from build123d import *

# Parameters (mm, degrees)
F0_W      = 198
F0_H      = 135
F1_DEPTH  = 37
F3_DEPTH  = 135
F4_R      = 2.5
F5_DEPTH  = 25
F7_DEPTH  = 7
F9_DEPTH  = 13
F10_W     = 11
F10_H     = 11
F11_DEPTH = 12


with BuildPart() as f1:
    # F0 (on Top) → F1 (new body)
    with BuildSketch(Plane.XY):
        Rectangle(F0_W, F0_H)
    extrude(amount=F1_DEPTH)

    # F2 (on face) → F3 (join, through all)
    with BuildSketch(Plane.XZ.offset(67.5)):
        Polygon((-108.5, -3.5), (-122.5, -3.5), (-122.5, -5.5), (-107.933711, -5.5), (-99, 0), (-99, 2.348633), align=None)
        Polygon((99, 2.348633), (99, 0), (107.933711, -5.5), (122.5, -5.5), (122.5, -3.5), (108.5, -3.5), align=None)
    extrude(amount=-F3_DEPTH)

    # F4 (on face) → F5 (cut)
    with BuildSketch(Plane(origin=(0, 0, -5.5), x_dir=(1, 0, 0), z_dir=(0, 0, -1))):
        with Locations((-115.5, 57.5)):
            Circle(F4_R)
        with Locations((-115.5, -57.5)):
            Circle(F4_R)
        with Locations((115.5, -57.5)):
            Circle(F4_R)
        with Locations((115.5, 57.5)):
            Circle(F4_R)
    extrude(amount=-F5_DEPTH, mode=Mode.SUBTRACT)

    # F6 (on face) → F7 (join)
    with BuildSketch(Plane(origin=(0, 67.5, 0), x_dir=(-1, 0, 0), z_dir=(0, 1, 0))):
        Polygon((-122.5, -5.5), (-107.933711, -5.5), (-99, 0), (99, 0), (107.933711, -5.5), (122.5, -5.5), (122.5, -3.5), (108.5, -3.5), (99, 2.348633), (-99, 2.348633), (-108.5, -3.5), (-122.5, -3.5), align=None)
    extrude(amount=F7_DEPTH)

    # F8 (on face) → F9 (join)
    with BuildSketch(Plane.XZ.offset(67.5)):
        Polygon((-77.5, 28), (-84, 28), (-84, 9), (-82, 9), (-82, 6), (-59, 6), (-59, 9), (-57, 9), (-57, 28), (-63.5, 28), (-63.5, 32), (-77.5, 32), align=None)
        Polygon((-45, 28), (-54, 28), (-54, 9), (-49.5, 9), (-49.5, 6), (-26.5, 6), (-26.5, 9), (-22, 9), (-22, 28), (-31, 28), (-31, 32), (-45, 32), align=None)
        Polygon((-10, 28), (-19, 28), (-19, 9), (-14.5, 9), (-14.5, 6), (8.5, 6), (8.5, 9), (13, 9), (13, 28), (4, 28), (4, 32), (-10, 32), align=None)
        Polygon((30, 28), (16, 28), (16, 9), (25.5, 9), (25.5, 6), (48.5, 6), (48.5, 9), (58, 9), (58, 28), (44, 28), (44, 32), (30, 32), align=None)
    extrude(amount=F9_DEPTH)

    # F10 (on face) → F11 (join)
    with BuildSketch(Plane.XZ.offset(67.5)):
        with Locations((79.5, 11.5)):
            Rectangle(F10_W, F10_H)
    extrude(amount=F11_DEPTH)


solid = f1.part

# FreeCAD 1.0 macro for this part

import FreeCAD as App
import Part
import Sketcher
from FreeCAD import Vector
Q = App.Units.Quantity

doc = App.newDocument("Part")
body = doc.addObject("PartDesign::Body", "Body")

# Sketch on XY plane
sketch1 = doc.addObject("Sketcher::SketchObject", "Sketch")
body.addObject(sketch1)
sketch1.AttachmentSupport = (doc.XY_Plane, [""])
sketch1.MapMode = "FlatFace"
sketch1.addGeometry([
    Part.LineSegment(Vector(-99, 68, 0), Vector(-99, -68, 0)),
    Part.LineSegment(Vector(-99, -68, 0), Vector(99, -68, 0)),
    Part.LineSegment(Vector(99, -68, 0), Vector(99, 68, 0)),
    Part.LineSegment(Vector(99, 68, 0), Vector(-99, 68, 0)),
], False)
sketch1.addConstraint([
    Sketcher.Constraint("Coincident", 0, 2, 1, 1),
    Sketcher.Constraint("Coincident", 1, 2, 2, 1),
    Sketcher.Constraint("Coincident", 2, 2, 3, 1),
    Sketcher.Constraint("Coincident", 3, 2, 0, 1),
    Sketcher.Constraint("Vertical", 0),
    Sketcher.Constraint("Horizontal", 1),
    Sketcher.Constraint("Vertical", 2),
    Sketcher.Constraint("Horizontal", 3),
    Sketcher.Constraint("Symmetric", 0, 2, 2, 2, -1, 1),
    Sketcher.Constraint("DistanceX", 1, 1, 1, 2, Q("198 mm")),
    Sketcher.Constraint("DistanceY", 0, 2, 0, 1, Q("135 mm")),
])
pad1 = doc.addObject("PartDesign::Pad", "Pad")
body.addObject(pad1)
pad1.Profile = sketch1
pad1.Length = 37

# Sketch on XZ plane
sketch2 = doc.addObject("Sketcher::SketchObject", "Sketch001")
body.addObject(sketch2)
sketch2.AttachmentSupport = (doc.XZ_Plane, [""])
sketch2.MapMode = "FlatFace"
sketch2.AttachmentOffset = App.Placement(Vector(0, 0, 67.5), App.Rotation())
sketch2.addGeometry([
    Part.LineSegment(Vector(-108.5, -3.5, 0), Vector(-122.5, -3.5, 0)),  # 0
    Part.LineSegment(Vector(-122.5, -3.5, 0), Vector(-122.5, -5.5, 0)),  # 1
    Part.LineSegment(Vector(-122.5, -5.5, 0), Vector(-107.9, -5.5, 0)),  # 2
    Part.LineSegment(Vector(-107.9, -5.5, 0), Vector(-99, 0, 0)),  # 3
    Part.LineSegment(Vector(-99, 0, 0), Vector(-99, 2.3, 0)),  # 4
    Part.LineSegment(Vector(-99, 2.3, 0), Vector(-108.5, -3.5, 0)),  # 5
    Part.LineSegment(Vector(99, 2.3, 0), Vector(99, 0, 0)),  # 6
    Part.LineSegment(Vector(99, 0, 0), Vector(107.9, -5.5, 0)),  # 7
    Part.LineSegment(Vector(107.9, -5.5, 0), Vector(122.5, -5.5, 0)),  # 8
    Part.LineSegment(Vector(122.5, -5.5, 0), Vector(122.5, -3.5, 0)),  # 9
    Part.LineSegment(Vector(122.5, -3.5, 0), Vector(108.5, -3.5, 0)),  # 10
    Part.LineSegment(Vector(108.5, -3.5, 0), Vector(99, 2.3, 0)),  # 11
], False)
sketch2.addConstraint([
    Sketcher.Constraint("Coincident", 0, 2, 1, 1),
    Sketcher.Constraint("Coincident", 1, 2, 2, 1),
    Sketcher.Constraint("Coincident", 2, 2, 3, 1),
    Sketcher.Constraint("Coincident", 3, 2, 4, 1),
    Sketcher.Constraint("Coincident", 4, 2, 5, 1),
    Sketcher.Constraint("Coincident", 5, 2, 0, 1),
    Sketcher.Constraint("Coincident", 6, 2, 7, 1),
    Sketcher.Constraint("Coincident", 7, 2, 8, 1),
    Sketcher.Constraint("Coincident", 8, 2, 9, 1),
    Sketcher.Constraint("Coincident", 9, 2, 10, 1),
    Sketcher.Constraint("Coincident", 10, 2, 11, 1),
    Sketcher.Constraint("Coincident", 11, 2, 6, 1),
    Sketcher.Constraint("Horizontal", 0),
    Sketcher.Constraint("Vertical", 1),
    Sketcher.Constraint("Horizontal", 2),
    Sketcher.Constraint("Vertical", 4),
    Sketcher.Constraint("Vertical", 6),
    Sketcher.Constraint("Horizontal", 8),
    Sketcher.Constraint("Vertical", 9),
    Sketcher.Constraint("Horizontal", 10),
    Sketcher.Constraint("Symmetric", 3, 2, 6, 2, -1, 1),
    Sketcher.Constraint("Symmetric", 2, 2, 7, 2, -2),
    Sketcher.Constraint("Symmetric", 0, 2, 9, 2, -2),
    Sketcher.Constraint("PointOnObject", 3, 2, -1),
    Sketcher.Constraint("Parallel", 3, 5),
    Sketcher.Constraint("Parallel", 7, 11),
    Sketcher.Constraint("Horizontal", 4, 2, 11, 2),
    Sketcher.Constraint("DistanceX", 0, 2, 0, 1, Q("14 mm")),
    Sketcher.Constraint("DistanceY", 1, 2, 1, 1, Q("2 mm")),
    Sketcher.Constraint("DistanceX", 3, 2, -1, 1, Q("99 mm")),
    Sketcher.Constraint("DistanceX", 0, 2, -1, 1, Q("122.5 mm")),
    Sketcher.Constraint("DistanceY", 0, 2, -1, 1, Q("3.5 mm")),
    Sketcher.Constraint("DistanceX", 2, 1, 2, 2, Q("14.566289 mm")),
])
pad2 = doc.addObject("PartDesign::Pad", "Pad001")
body.addObject(pad2)
pad2.Profile = sketch2
pad2.Length = 135
pad2.Reversed = True

# Sketch on XY plane
sketch3 = doc.addObject("Sketcher::SketchObject", "Sketch002")
body.addObject(sketch3)
sketch3.AttachmentSupport = (doc.XY_Plane, [""])
sketch3.MapMode = "FlatFace"
sketch3.AttachmentOffset = App.Placement(Vector(0, 0, -5.5), App.Rotation())
sketch3.addGeometry([
    Part.Circle(Vector(-115.5, -57.5, 0), Vector(0, 0, 1), 2.5),
    Part.Circle(Vector(-115.5, 57.5, 0), Vector(0, 0, 1), 2.5),
    Part.Circle(Vector(115.5, 57.5, 0), Vector(0, 0, 1), 2.5),
    Part.Circle(Vector(115.5, -57.5, 0), Vector(0, 0, 1), 2.5),
], False)
sketch3.addConstraint([
    Sketcher.Constraint("Equal", 0, 1),
    Sketcher.Constraint("Equal", 1, 2),
    Sketcher.Constraint("Equal", 2, 3),
    Sketcher.Constraint("Symmetric", 0, 3, 2, 3, -1, 1),
    Sketcher.Constraint("Symmetric", 1, 3, 3, 3, -1, 1),
    Sketcher.Constraint("Symmetric", 1, 3, 2, 3, -2),
    Sketcher.Constraint("Diameter", 0, Q("5 mm")),
    Sketcher.Constraint("DistanceY", 0, 3, 1, 3, Q("115 mm")),
    Sketcher.Constraint("DistanceX", 1, 3, 2, 3, Q("231 mm")),
])
pocket1 = doc.addObject("PartDesign::Pocket", "Pocket")
body.addObject(pocket1)
pocket1.Profile = sketch3
pocket1.Length = 25
pocket1.Reversed = True

# Sketch on XZ plane
sketch4 = doc.addObject("Sketcher::SketchObject", "Sketch003")
body.addObject(sketch4)
sketch4.AttachmentSupport = (doc.XZ_Plane, [""])
sketch4.MapMode = "FlatFace"
sketch4.AttachmentOffset = App.Placement(Vector(0, 0, -67.5), App.Rotation())
sketch4.addGeometry([
    Part.LineSegment(Vector(122.5, -5.5, 0), Vector(107.9, -5.5, 0)),  # 0
    Part.LineSegment(Vector(107.9, -5.5, 0), Vector(99, 0, 0)),  # 1
    Part.LineSegment(Vector(99, 0, 0), Vector(-99, 0, 0)),  # 2
    Part.LineSegment(Vector(-99, 0, 0), Vector(-107.9, -5.5, 0)),  # 3
    Part.LineSegment(Vector(-107.9, -5.5, 0), Vector(-122.5, -5.5, 0)),  # 4
    Part.LineSegment(Vector(-122.5, -5.5, 0), Vector(-122.5, -3.5, 0)),  # 5
    Part.LineSegment(Vector(-122.5, -3.5, 0), Vector(-108.5, -3.5, 0)),  # 6
    Part.LineSegment(Vector(-108.5, -3.5, 0), Vector(-99, 2.3, 0)),  # 7
    Part.LineSegment(Vector(-99, 2.3, 0), Vector(99, 2.3, 0)),  # 8
    Part.LineSegment(Vector(99, 2.3, 0), Vector(108.5, -3.5, 0)),  # 9
    Part.LineSegment(Vector(108.5, -3.5, 0), Vector(122.5, -3.5, 0)),  # 10
    Part.LineSegment(Vector(122.5, -3.5, 0), Vector(122.5, -5.5, 0)),  # 11
], False)
sketch4.addConstraint([
    Sketcher.Constraint("Coincident", 0, 2, 1, 1),
    Sketcher.Constraint("Coincident", 1, 2, 2, 1),
    Sketcher.Constraint("Coincident", 2, 2, 3, 1),
    Sketcher.Constraint("Coincident", 3, 2, 4, 1),
    Sketcher.Constraint("Coincident", 4, 2, 5, 1),
    Sketcher.Constraint("Coincident", 5, 2, 6, 1),
    Sketcher.Constraint("Coincident", 6, 2, 7, 1),
    Sketcher.Constraint("Coincident", 7, 2, 8, 1),
    Sketcher.Constraint("Coincident", 8, 2, 9, 1),
    Sketcher.Constraint("Coincident", 9, 2, 10, 1),
    Sketcher.Constraint("Coincident", 10, 2, 11, 1),
    Sketcher.Constraint("Coincident", 11, 2, 0, 1),
    Sketcher.Constraint("Horizontal", 0),
    Sketcher.Constraint("Horizontal", 2),
    Sketcher.Constraint("Horizontal", 4),
    Sketcher.Constraint("Vertical", 5),
    Sketcher.Constraint("Horizontal", 6),
    Sketcher.Constraint("Horizontal", 8),
    Sketcher.Constraint("Horizontal", 10),
    Sketcher.Constraint("Vertical", 11),
    Sketcher.Constraint("Symmetric", 1, 2, 2, 2, -1, 1),
    Sketcher.Constraint("Symmetric", 0, 2, 3, 2, -2),
    Sketcher.Constraint("Symmetric", 6, 2, 9, 2, -2),
    Sketcher.Constraint("Parallel", 3, 7),
    Sketcher.Constraint("Parallel", 1, 9),
    Sketcher.Constraint("Vertical", 2, 2, 7, 2),
    Sketcher.Constraint("Equal", 0, 4),
    Sketcher.Constraint("DistanceX", 2, 2, 2, 1, Q("198 mm")),
    Sketcher.Constraint("DistanceX", 6, 1, 6, 2, Q("14 mm")),
    Sketcher.Constraint("DistanceY", 5, 1, 5, 2, Q("2 mm")),
    Sketcher.Constraint("DistanceY", 0, 2, -1, 1, Q("5.5 mm")),
    Sketcher.Constraint("DistanceX", 4, 2, -1, 1, Q("122.5 mm")),
    Sketcher.Constraint("DistanceX", 0, 2, 0, 1, Q("14.566289 mm")),
])
pad3 = doc.addObject("PartDesign::Pad", "Pad002")
body.addObject(pad3)
pad3.Profile = sketch4
pad3.Length = 7
pad3.Reversed = True

# Sketch on XZ plane
sketch5 = doc.addObject("Sketcher::SketchObject", "Sketch004")
body.addObject(sketch5)
sketch5.AttachmentSupport = (doc.XZ_Plane, [""])
sketch5.MapMode = "FlatFace"
sketch5.AttachmentOffset = App.Placement(Vector(0, 0, 67.5), App.Rotation())
sketch5.addGeometry([
    Part.LineSegment(Vector(-77.5, 28, 0), Vector(-84, 28, 0)),  # 0
    Part.LineSegment(Vector(-84, 28, 0), Vector(-84, 9, 0)),  # 1
    Part.LineSegment(Vector(-84, 9, 0), Vector(-82, 9, 0)),  # 2
    Part.LineSegment(Vector(-82, 9, 0), Vector(-82, 6, 0)),  # 3
    Part.LineSegment(Vector(-82, 6, 0), Vector(-59, 6, 0)),  # 4
    Part.LineSegment(Vector(-59, 6, 0), Vector(-59, 9, 0)),  # 5
    Part.LineSegment(Vector(-59, 9, 0), Vector(-57, 9, 0)),  # 6
    Part.LineSegment(Vector(-57, 9, 0), Vector(-57, 28, 0)),  # 7
    Part.LineSegment(Vector(-57, 28, 0), Vector(-63.5, 28, 0)),  # 8
    Part.LineSegment(Vector(-63.5, 28, 0), Vector(-63.5, 32, 0)),  # 9
    Part.LineSegment(Vector(-63.5, 32, 0), Vector(-77.5, 32, 0)),  # 10
    Part.LineSegment(Vector(-77.5, 32, 0), Vector(-77.5, 28, 0)),  # 11
    Part.LineSegment(Vector(-45, 28, 0), Vector(-54, 28, 0)),  # 12
    Part.LineSegment(Vector(-54, 28, 0), Vector(-54, 9, 0)),  # 13
    Part.LineSegment(Vector(-54, 9, 0), Vector(-49.5, 9, 0)),  # 14
    Part.LineSegment(Vector(-49.5, 9, 0), Vector(-49.5, 6, 0)),  # 15
    Part.LineSegment(Vector(-49.5, 6, 0), Vector(-26.5, 6, 0)),  # 16
    Part.LineSegment(Vector(-26.5, 6, 0), Vector(-26.5, 9, 0)),  # 17
    Part.LineSegment(Vector(-26.5, 9, 0), Vector(-22, 9, 0)),  # 18
    Part.LineSegment(Vector(-22, 9, 0), Vector(-22, 28, 0)),  # 19
    Part.LineSegment(Vector(-22, 28, 0), Vector(-31, 28, 0)),  # 20
    Part.LineSegment(Vector(-31, 28, 0), Vector(-31, 32, 0)),  # 21
    Part.LineSegment(Vector(-31, 32, 0), Vector(-45, 32, 0)),  # 22
    Part.LineSegment(Vector(-45, 32, 0), Vector(-45, 28, 0)),  # 23
    Part.LineSegment(Vector(-10, 28, 0), Vector(-19, 28, 0)),  # 24
    Part.LineSegment(Vector(-19, 28, 0), Vector(-19, 9, 0)),  # 25
    Part.LineSegment(Vector(-19, 9, 0), Vector(-14.5, 9, 0)),  # 26
    Part.LineSegment(Vector(-14.5, 9, 0), Vector(-14.5, 6, 0)),  # 27
    Part.LineSegment(Vector(-14.5, 6, 0), Vector(8.5, 6, 0)),  # 28
    Part.LineSegment(Vector(8.5, 6, 0), Vector(8.5, 9, 0)),  # 29
    Part.LineSegment(Vector(8.5, 9, 0), Vector(13, 9, 0)),  # 30
    Part.LineSegment(Vector(13, 9, 0), Vector(13, 28, 0)),  # 31
    Part.LineSegment(Vector(13, 28, 0), Vector(4, 28, 0)),  # 32
    Part.LineSegment(Vector(4, 28, 0), Vector(4, 32, 0)),  # 33
    Part.LineSegment(Vector(4, 32, 0), Vector(-10, 32, 0)),  # 34
    Part.LineSegment(Vector(-10, 32, 0), Vector(-10, 28, 0)),  # 35
    Part.LineSegment(Vector(30, 28, 0), Vector(16, 28, 0)),  # 36
    Part.LineSegment(Vector(16, 28, 0), Vector(16, 9, 0)),  # 37
    Part.LineSegment(Vector(16, 9, 0), Vector(25.5, 9, 0)),  # 38
    Part.LineSegment(Vector(25.5, 9, 0), Vector(25.5, 6, 0)),  # 39
    Part.LineSegment(Vector(25.5, 6, 0), Vector(48.5, 6, 0)),  # 40
    Part.LineSegment(Vector(48.5, 6, 0), Vector(48.5, 9, 0)),  # 41
    Part.LineSegment(Vector(48.5, 9, 0), Vector(58, 9, 0)),  # 42
    Part.LineSegment(Vector(58, 9, 0), Vector(58, 28, 0)),  # 43
    Part.LineSegment(Vector(58, 28, 0), Vector(44, 28, 0)),  # 44
    Part.LineSegment(Vector(44, 28, 0), Vector(44, 32, 0)),  # 45
    Part.LineSegment(Vector(44, 32, 0), Vector(30, 32, 0)),  # 46
    Part.LineSegment(Vector(30, 32, 0), Vector(30, 28, 0)),  # 47
], False)
sketch5.addConstraint([
    Sketcher.Constraint("Coincident", 0, 2, 1, 1),
    Sketcher.Constraint("Coincident", 1, 2, 2, 1),
    Sketcher.Constraint("Coincident", 2, 2, 3, 1),
    Sketcher.Constraint("Coincident", 3, 2, 4, 1),
    Sketcher.Constraint("Coincident", 4, 2, 5, 1),
    Sketcher.Constraint("Coincident", 5, 2, 6, 1),
    Sketcher.Constraint("Coincident", 6, 2, 7, 1),
    Sketcher.Constraint("Coincident", 7, 2, 8, 1),
    Sketcher.Constraint("Coincident", 8, 2, 9, 1),
    Sketcher.Constraint("Coincident", 9, 2, 10, 1),
    Sketcher.Constraint("Coincident", 10, 2, 11, 1),
    Sketcher.Constraint("Coincident", 11, 2, 0, 1),
    Sketcher.Constraint("Coincident", 12, 2, 13, 1),
    Sketcher.Constraint("Coincident", 13, 2, 14, 1),
    Sketcher.Constraint("Coincident", 14, 2, 15, 1),
    Sketcher.Constraint("Coincident", 15, 2, 16, 1),
    Sketcher.Constraint("Coincident", 16, 2, 17, 1),
    Sketcher.Constraint("Coincident", 17, 2, 18, 1),
    Sketcher.Constraint("Coincident", 18, 2, 19, 1),
    Sketcher.Constraint("Coincident", 19, 2, 20, 1),
    Sketcher.Constraint("Coincident", 20, 2, 21, 1),
    Sketcher.Constraint("Coincident", 21, 2, 22, 1),
    Sketcher.Constraint("Coincident", 22, 2, 23, 1),
    Sketcher.Constraint("Coincident", 23, 2, 12, 1),
    Sketcher.Constraint("Coincident", 24, 2, 25, 1),
    Sketcher.Constraint("Coincident", 25, 2, 26, 1),
    Sketcher.Constraint("Coincident", 26, 2, 27, 1),
    Sketcher.Constraint("Coincident", 27, 2, 28, 1),
    Sketcher.Constraint("Coincident", 28, 2, 29, 1),
    Sketcher.Constraint("Coincident", 29, 2, 30, 1),
    Sketcher.Constraint("Coincident", 30, 2, 31, 1),
    Sketcher.Constraint("Coincident", 31, 2, 32, 1),
    Sketcher.Constraint("Coincident", 32, 2, 33, 1),
    Sketcher.Constraint("Coincident", 33, 2, 34, 1),
    Sketcher.Constraint("Coincident", 34, 2, 35, 1),
    Sketcher.Constraint("Coincident", 35, 2, 24, 1),
    Sketcher.Constraint("Coincident", 36, 2, 37, 1),
    Sketcher.Constraint("Coincident", 37, 2, 38, 1),
    Sketcher.Constraint("Coincident", 38, 2, 39, 1),
    Sketcher.Constraint("Coincident", 39, 2, 40, 1),
    Sketcher.Constraint("Coincident", 40, 2, 41, 1),
    Sketcher.Constraint("Coincident", 41, 2, 42, 1),
    Sketcher.Constraint("Coincident", 42, 2, 43, 1),
    Sketcher.Constraint("Coincident", 43, 2, 44, 1),
    Sketcher.Constraint("Coincident", 44, 2, 45, 1),
    Sketcher.Constraint("Coincident", 45, 2, 46, 1),
    Sketcher.Constraint("Coincident", 46, 2, 47, 1),
    Sketcher.Constraint("Coincident", 47, 2, 36, 1),
    Sketcher.Constraint("Horizontal", 0),
    Sketcher.Constraint("Vertical", 1),
    Sketcher.Constraint("Horizontal", 2),
    Sketcher.Constraint("Vertical", 3),
    Sketcher.Constraint("Horizontal", 4),
    Sketcher.Constraint("Vertical", 5),
    Sketcher.Constraint("Horizontal", 6),
    Sketcher.Constraint("Vertical", 7),
    Sketcher.Constraint("Horizontal", 8),
    Sketcher.Constraint("Vertical", 9),
    Sketcher.Constraint("Horizontal", 10),
    Sketcher.Constraint("Vertical", 11),
    Sketcher.Constraint("Horizontal", 12),
    Sketcher.Constraint("Vertical", 13),
    Sketcher.Constraint("Horizontal", 14),
    Sketcher.Constraint("Vertical", 15),
    Sketcher.Constraint("Horizontal", 16),
    Sketcher.Constraint("Vertical", 17),
    Sketcher.Constraint("Horizontal", 18),
    Sketcher.Constraint("Vertical", 19),
    Sketcher.Constraint("Horizontal", 20),
    Sketcher.Constraint("Vertical", 21),
    Sketcher.Constraint("Horizontal", 22),
    Sketcher.Constraint("Vertical", 23),
    Sketcher.Constraint("Horizontal", 24),
    Sketcher.Constraint("Vertical", 25),
    Sketcher.Constraint("Horizontal", 26),
    Sketcher.Constraint("Vertical", 27),
    Sketcher.Constraint("Horizontal", 28),
    Sketcher.Constraint("Vertical", 29),
    Sketcher.Constraint("Horizontal", 30),
    Sketcher.Constraint("Vertical", 31),
    Sketcher.Constraint("Horizontal", 32),
    Sketcher.Constraint("Vertical", 33),
    Sketcher.Constraint("Horizontal", 34),
    Sketcher.Constraint("Vertical", 35),
    Sketcher.Constraint("Horizontal", 36),
    Sketcher.Constraint("Vertical", 37),
    Sketcher.Constraint("Horizontal", 38),
    Sketcher.Constraint("Vertical", 39),
    Sketcher.Constraint("Horizontal", 40),
    Sketcher.Constraint("Vertical", 41),
    Sketcher.Constraint("Horizontal", 42),
    Sketcher.Constraint("Vertical", 43),
    Sketcher.Constraint("Horizontal", 44),
    Sketcher.Constraint("Vertical", 45),
    Sketcher.Constraint("Horizontal", 46),
    Sketcher.Constraint("Vertical", 47),
    Sketcher.Constraint("Horizontal", 2, 2, 5, 2),
    Sketcher.Constraint("Horizontal", 0, 2, 7, 2),
    Sketcher.Constraint("Horizontal", 11, 2, 12, 2),
    Sketcher.Constraint("Horizontal", 6, 2, 13, 2),
    Sketcher.Constraint("Horizontal", 4, 2, 15, 2),
    Sketcher.Constraint("Horizontal", 14, 2, 17, 2),
    Sketcher.Constraint("Horizontal", 12, 2, 19, 2),
    Sketcher.Constraint("Horizontal", 10, 2, 21, 2),
    Sketcher.Constraint("Horizontal", 23, 2, 24, 2),
    Sketcher.Constraint("Horizontal", 18, 2, 25, 2),
    Sketcher.Constraint("Horizontal", 16, 2, 27, 2),
    Sketcher.Constraint("Horizontal", 26, 2, 29, 2),
    Sketcher.Constraint("Horizontal", 24, 2, 31, 2),
    Sketcher.Constraint("Horizontal", 22, 2, 33, 2),
    Sketcher.Constraint("Horizontal", 35, 2, 36, 2),
    Sketcher.Constraint("Horizontal", 30, 2, 37, 2),
    Sketcher.Constraint("Horizontal", 28, 2, 39, 2),
    Sketcher.Constraint("Horizontal", 38, 2, 41, 2),
    Sketcher.Constraint("Horizontal", 36, 2, 43, 2),
    Sketcher.Constraint("Horizontal", 34, 2, 45, 2),
    Sketcher.Constraint("Equal", 2, 6),
    Sketcher.Constraint("Equal", 0, 8),
    Sketcher.Constraint("Equal", 4, 16),
    Sketcher.Constraint("Equal", 14, 18),
    Sketcher.Constraint("Equal", 12, 20),
    Sketcher.Constraint("Equal", 10, 22),
    Sketcher.Constraint("Equal", 20, 24),
    Sketcher.Constraint("Equal", 18, 26),
    Sketcher.Constraint("Equal", 16, 28),
    Sketcher.Constraint("Equal", 26, 30),
    Sketcher.Constraint("Equal", 24, 32),
    Sketcher.Constraint("Equal", 34, 36),
    Sketcher.Constraint("Equal", 28, 40),
    Sketcher.Constraint("Equal", 38, 42),
    Sketcher.Constraint("Equal", 36, 44),
    Sketcher.Constraint("Equal", 44, 46),
    Sketcher.Constraint("DistanceX", 2, 1, 2, 2, Q("2 mm")),
    Sketcher.Constraint("DistanceX", 4, 1, 4, 2, Q("23 mm")),
    Sketcher.Constraint("DistanceX", 10, 2, 10, 1, Q("14 mm")),
    Sketcher.Constraint("DistanceX", 12, 2, 12, 1, Q("9 mm")),
    Sketcher.Constraint("DistanceY", 1, 2, 1, 1, Q("19 mm")),
    Sketcher.Constraint("DistanceY", 3, 2, 3, 1, Q("3 mm")),
    Sketcher.Constraint("DistanceY", 9, 1, 9, 2, Q("4 mm")),
    Sketcher.Constraint("DistanceX", 0, 2, -1, 1, Q("84 mm")),
    Sketcher.Constraint("DistanceY", -1, 1, 0, 2, Q("28 mm")),
    Sketcher.Constraint("DistanceX", 12, 2, -1, 1, Q("54 mm")),
    Sketcher.Constraint("DistanceX", 24, 2, -1, 1, Q("19 mm")),
    Sketcher.Constraint("DistanceX", -1, 1, 36, 2, Q("16 mm")),
])
pad4 = doc.addObject("PartDesign::Pad", "Pad003")
body.addObject(pad4)
pad4.Profile = sketch5
pad4.Length = 13

# Sketch on XZ plane
sketch6 = doc.addObject("Sketcher::SketchObject", "Sketch005")
body.addObject(sketch6)
sketch6.AttachmentSupport = (doc.XZ_Plane, [""])
sketch6.MapMode = "FlatFace"
sketch6.AttachmentOffset = App.Placement(Vector(0, 0, 67.5), App.Rotation())
sketch6.addGeometry([
    Part.LineSegment(Vector(74, 17, 0), Vector(74, 6, 0)),
    Part.LineSegment(Vector(74, 6, 0), Vector(85, 6, 0)),
    Part.LineSegment(Vector(85, 6, 0), Vector(85, 17, 0)),
    Part.LineSegment(Vector(85, 17, 0), Vector(74, 17, 0)),
], False)
sketch6.addConstraint([
    Sketcher.Constraint("Coincident", 0, 2, 1, 1),
    Sketcher.Constraint("Coincident", 1, 2, 2, 1),
    Sketcher.Constraint("Coincident", 2, 2, 3, 1),
    Sketcher.Constraint("Coincident", 3, 2, 0, 1),
    Sketcher.Constraint("Vertical", 0),
    Sketcher.Constraint("Horizontal", 1),
    Sketcher.Constraint("Vertical", 2),
    Sketcher.Constraint("Horizontal", 3),
    Sketcher.Constraint("Equal", 3, 0),
    Sketcher.Constraint("DistanceX", 1, 1, 1, 2, Q("11 mm")),
    Sketcher.Constraint("DistanceX", -1, 1, 0, 2, Q("74 mm")),
    Sketcher.Constraint("DistanceY", -1, 1, 0, 2, Q("6 mm")),
])
pad5 = doc.addObject("PartDesign::Pad", "Pad004")
body.addObject(pad5)
pad5.Profile = sketch6
pad5.Length = 12

doc.recompute()
